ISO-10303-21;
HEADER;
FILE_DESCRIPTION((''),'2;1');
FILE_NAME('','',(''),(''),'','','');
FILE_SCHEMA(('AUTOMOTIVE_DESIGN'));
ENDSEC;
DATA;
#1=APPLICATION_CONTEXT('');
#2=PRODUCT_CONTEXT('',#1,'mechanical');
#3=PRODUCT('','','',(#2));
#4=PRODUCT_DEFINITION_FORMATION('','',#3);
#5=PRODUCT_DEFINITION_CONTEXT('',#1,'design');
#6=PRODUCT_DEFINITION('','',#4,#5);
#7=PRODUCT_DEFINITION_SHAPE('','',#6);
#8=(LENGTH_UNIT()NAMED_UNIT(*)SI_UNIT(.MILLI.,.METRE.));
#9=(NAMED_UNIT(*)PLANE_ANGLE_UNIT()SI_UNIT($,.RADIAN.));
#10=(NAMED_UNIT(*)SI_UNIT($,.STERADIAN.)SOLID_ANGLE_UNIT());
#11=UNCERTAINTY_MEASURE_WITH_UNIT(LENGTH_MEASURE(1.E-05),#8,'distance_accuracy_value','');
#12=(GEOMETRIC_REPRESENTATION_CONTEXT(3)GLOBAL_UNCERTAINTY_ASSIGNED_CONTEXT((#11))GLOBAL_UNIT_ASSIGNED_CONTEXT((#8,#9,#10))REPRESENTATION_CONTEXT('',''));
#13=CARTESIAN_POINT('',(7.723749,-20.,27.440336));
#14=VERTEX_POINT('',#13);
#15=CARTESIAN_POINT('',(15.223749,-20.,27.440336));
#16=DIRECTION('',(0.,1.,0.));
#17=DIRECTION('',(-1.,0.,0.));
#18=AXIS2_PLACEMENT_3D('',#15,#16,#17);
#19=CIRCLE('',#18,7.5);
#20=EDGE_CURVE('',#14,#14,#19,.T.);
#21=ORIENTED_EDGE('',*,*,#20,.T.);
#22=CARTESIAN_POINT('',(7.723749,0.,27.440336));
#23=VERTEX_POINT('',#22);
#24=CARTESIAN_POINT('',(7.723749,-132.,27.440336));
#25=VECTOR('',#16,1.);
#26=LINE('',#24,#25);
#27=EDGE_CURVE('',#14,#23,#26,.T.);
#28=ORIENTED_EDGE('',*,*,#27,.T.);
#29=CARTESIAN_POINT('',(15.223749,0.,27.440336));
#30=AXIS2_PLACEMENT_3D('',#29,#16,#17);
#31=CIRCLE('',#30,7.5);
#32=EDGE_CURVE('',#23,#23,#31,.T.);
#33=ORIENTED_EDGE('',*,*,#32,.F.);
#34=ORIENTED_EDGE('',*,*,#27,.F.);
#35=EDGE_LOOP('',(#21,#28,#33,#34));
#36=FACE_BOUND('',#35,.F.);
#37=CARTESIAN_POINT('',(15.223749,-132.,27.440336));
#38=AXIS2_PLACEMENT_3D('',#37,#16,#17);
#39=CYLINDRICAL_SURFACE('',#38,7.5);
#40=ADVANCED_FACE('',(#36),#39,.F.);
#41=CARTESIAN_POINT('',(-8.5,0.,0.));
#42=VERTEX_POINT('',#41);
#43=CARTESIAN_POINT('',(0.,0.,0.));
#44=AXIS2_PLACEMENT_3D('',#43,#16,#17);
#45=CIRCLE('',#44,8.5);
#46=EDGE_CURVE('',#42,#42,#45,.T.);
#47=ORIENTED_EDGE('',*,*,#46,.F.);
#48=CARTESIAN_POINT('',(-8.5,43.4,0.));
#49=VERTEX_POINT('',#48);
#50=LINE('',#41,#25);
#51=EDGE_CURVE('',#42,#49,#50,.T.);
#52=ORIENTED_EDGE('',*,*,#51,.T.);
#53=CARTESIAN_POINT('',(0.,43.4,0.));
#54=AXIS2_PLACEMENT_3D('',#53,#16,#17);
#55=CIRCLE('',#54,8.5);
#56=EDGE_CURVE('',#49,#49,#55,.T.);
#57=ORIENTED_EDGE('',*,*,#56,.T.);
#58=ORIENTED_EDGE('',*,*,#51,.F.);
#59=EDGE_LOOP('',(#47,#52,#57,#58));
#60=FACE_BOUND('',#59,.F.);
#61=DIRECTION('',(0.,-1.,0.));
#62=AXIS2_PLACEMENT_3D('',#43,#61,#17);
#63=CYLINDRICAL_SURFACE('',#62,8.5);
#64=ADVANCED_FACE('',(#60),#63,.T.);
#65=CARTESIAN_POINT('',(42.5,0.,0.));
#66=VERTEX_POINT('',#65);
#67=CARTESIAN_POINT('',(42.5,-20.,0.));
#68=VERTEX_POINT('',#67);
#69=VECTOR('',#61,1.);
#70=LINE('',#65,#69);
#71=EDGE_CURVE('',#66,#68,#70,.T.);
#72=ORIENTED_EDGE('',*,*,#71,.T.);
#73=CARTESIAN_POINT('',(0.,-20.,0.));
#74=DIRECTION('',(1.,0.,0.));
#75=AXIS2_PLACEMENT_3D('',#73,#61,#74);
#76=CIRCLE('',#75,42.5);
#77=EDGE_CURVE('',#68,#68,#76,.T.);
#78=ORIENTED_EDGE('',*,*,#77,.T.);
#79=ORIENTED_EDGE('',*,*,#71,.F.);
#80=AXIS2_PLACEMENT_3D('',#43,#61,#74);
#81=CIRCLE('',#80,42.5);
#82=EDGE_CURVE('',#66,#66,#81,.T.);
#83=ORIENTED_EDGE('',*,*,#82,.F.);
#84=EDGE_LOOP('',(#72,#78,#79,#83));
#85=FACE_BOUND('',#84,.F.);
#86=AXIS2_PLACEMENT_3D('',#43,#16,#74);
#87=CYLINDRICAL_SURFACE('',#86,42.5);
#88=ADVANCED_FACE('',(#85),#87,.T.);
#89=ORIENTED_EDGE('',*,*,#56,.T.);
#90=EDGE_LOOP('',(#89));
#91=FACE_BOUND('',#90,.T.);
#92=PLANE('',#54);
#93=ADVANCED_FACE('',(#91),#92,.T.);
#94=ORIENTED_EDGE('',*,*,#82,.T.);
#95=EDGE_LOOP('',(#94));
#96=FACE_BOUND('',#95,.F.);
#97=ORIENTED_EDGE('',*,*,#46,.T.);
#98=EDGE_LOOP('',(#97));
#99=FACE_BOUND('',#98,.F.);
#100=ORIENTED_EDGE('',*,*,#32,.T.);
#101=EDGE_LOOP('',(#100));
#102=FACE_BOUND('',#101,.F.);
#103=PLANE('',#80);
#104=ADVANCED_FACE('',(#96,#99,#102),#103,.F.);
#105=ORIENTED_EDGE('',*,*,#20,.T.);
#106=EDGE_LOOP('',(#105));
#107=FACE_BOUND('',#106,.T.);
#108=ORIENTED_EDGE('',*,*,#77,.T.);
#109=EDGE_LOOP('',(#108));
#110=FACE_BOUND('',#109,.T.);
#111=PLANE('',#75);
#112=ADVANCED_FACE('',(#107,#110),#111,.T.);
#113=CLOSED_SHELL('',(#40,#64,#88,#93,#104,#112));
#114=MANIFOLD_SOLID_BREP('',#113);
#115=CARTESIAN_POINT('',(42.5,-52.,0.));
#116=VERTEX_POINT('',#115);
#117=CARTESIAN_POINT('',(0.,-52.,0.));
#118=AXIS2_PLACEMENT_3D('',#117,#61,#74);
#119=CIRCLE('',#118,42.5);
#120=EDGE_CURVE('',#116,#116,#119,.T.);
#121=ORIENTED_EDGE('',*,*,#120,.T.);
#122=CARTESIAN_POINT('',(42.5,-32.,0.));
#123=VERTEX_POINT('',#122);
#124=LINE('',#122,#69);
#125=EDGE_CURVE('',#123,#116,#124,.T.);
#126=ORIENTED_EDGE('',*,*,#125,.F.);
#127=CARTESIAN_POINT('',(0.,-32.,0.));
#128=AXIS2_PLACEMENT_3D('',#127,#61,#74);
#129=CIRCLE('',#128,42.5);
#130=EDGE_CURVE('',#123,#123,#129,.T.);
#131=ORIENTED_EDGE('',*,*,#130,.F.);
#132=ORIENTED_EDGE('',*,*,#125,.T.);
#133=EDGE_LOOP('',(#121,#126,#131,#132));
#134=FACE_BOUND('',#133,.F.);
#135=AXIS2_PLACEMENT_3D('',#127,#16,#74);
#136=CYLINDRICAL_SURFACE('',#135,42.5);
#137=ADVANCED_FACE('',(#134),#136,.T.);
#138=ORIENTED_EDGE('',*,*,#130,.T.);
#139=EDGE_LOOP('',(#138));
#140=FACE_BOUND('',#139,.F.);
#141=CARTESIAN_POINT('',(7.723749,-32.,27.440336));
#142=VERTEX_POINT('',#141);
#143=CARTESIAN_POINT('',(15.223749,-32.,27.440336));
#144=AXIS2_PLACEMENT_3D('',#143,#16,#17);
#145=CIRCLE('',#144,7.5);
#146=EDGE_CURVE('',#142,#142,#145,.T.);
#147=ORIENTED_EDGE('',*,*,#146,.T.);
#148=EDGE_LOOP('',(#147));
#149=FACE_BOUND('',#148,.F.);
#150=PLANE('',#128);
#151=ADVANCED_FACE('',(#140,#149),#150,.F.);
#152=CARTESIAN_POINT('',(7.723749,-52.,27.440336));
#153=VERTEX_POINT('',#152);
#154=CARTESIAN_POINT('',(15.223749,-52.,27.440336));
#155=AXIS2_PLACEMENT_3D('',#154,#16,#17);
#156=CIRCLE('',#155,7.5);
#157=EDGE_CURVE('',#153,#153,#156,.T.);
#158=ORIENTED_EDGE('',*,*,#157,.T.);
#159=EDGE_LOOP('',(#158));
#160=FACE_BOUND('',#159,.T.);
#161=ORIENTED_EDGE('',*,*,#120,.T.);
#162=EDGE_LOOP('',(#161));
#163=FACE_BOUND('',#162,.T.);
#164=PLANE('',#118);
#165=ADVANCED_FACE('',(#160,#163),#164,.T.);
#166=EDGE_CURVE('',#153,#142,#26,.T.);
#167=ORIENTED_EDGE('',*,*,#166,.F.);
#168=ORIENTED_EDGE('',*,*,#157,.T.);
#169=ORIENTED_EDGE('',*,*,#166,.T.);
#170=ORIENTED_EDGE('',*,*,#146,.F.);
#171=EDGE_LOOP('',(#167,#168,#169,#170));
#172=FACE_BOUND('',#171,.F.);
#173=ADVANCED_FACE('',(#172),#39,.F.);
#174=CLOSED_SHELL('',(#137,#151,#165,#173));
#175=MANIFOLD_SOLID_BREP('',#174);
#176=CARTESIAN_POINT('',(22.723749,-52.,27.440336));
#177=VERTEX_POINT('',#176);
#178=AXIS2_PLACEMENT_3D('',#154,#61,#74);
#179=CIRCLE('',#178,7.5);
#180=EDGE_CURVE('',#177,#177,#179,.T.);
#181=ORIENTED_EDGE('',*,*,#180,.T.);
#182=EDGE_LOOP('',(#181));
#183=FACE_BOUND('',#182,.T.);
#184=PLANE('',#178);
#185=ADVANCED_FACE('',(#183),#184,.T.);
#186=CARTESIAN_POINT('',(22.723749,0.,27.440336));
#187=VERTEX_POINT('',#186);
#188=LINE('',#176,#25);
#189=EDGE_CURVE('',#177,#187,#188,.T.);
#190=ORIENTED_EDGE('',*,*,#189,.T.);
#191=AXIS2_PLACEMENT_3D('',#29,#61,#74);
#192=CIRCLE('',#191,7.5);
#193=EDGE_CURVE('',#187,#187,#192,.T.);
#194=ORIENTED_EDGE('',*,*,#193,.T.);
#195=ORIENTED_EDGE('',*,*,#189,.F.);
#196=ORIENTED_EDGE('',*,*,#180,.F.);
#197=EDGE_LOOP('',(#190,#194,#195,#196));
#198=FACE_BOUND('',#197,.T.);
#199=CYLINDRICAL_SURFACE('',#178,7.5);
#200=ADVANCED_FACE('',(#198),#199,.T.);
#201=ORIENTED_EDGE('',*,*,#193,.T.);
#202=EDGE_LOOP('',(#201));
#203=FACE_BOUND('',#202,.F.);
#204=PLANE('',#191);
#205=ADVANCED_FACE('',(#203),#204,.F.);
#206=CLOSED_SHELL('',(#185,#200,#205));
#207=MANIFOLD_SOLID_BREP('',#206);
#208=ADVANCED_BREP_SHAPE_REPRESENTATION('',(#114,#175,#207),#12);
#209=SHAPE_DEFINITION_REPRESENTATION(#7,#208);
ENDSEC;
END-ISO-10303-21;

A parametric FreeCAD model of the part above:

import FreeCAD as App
import Part
import Sketcher
from FreeCAD import Vector
Q = App.Units.Quantity

doc = App.newDocument("Part")
body = doc.addObject("PartDesign::Body", "Body")

# Sketch on XZ plane
sketch1 = doc.addObject("Sketcher::SketchObject", "Sketch")
body.addObject(sketch1)
sketch1.AttachmentSupport = (doc.XZ_Plane, [""])
sketch1.MapMode = "FlatFace"
sketch1.addGeometry(Part.Circle(Vector(0, 0, 0), Vector(0, 0, 1), 42), False)
sketch1.addConstraint(Sketcher.Constraint("Coincident", 0, 3, -1, 1))
sketch1.addConstraint(Sketcher.Constraint("Diameter", 0, Q("85 mm")))
pad1 = doc.addObject("PartDesign::Pad", "Pad")
body.addObject(pad1)
pad1.Profile = sketch1
pad1.Length = 20

# Sketch on XZ plane
sketch2 = doc.addObject("Sketcher::SketchObject", "Sketch001")
body.addObject(sketch2)
sketch2.AttachmentSupport = (doc.XZ_Plane, [""])
sketch2.MapMode = "FlatFace"
sketch2.addGeometry(Part.Circle(Vector(0, 0, 0), Vector(0, 0, 1), 8), False)
sketch2.addConstraint(Sketcher.Constraint("Coincident", 0, 3, -1, 1))
sketch2.addConstraint(Sketcher.Constraint("Diameter", 0, Q("17 mm")))
pad2 = doc.addObject("PartDesign::Pad", "Pad001")
body.addObject(pad2)
pad2.Profile = sketch2
pad2.Length = 43.4
pad2.Reversed = True

# Sketch on XZ plane
sketch3 = doc.addObject("Sketcher::SketchObject", "Sketch002")
body.addObject(sketch3)
sketch3.AttachmentSupport = (doc.XZ_Plane, [""])
sketch3.MapMode = "FlatFace"
sketch3.AttachmentOffset = App.Placement(Vector(0, 0, 52), App.Rotation())
sketch3.addGeometry(Part.Circle(Vector(15, 27, 0), Vector(0, 0, 1), 8), False)
sketch3.addConstraint(Sketcher.Constraint("Diameter", 0, Q("15 mm")))
sketch3.addConstraint(Sketcher.Constraint("DistanceX", -1, 1, 0, 3, Q("15.223749 mm")))
sketch3.addConstraint(Sketcher.Constraint("DistanceY", -1, 1, 0, 3, Q("27.440336 mm")))
doc.recompute()
hole = doc.addObject("PartDesign::Hole", "Hole")
body.addObject(hole)
hole.Profile = sketch3
hole.ThreadType = "None"
hole.Diameter = 15
hole.DepthType = "Dimension"
hole.Depth = 80
hole.DrillPoint = "Flat"
body2 = doc.addObject("PartDesign::Body", "Body001")

# Sketch on XZ plane
sketch4 = doc.addObject("Sketcher::SketchObject", "Sketch003")
body2.addObject(sketch4)
sketch4.AttachmentSupport = (doc.getObject("XZ_Plane001"), [""])
sketch4.MapMode = "FlatFace"
sketch4.AttachmentOffset = App.Placement(Vector(0, 0, 32), App.Rotation())
sketch4.addGeometry(Part.Circle(Vector(0, 0, 0), Vector(0, 0, 1), 42), False)
sketch4.addConstraint(Sketcher.Constraint("Coincident", 0, 3, -1, 1))
sketch4.addConstraint(Sketcher.Constraint("Diameter", 0, Q("85 mm")))
pad3 = doc.addObject("PartDesign::Pad", "Pad002")
body2.addObject(pad3)
pad3.Profile = sketch4
pad3.Length = 20

# Sketch on XZ plane
sketch5 = doc.addObject("Sketcher::SketchObject", "Sketch004")
body2.addObject(sketch5)
sketch5.AttachmentSupport = (doc.getObject("XZ_Plane001"), [""])
sketch5.MapMode = "FlatFace"
sketch5.AttachmentOffset = App.Placement(Vector(0, 0, 52), App.Rotation())
sketch5.addGeometry(Part.Circle(Vector(15, 27, 0), Vector(0, 0, 1), 8), False)
sketch5.addConstraint(Sketcher.Constraint("Diameter", 0, Q("15 mm")))
sketch5.addConstraint(Sketcher.Constraint("DistanceX", -1, 1, 0, 3, Q("15.223749 mm")))
sketch5.addConstraint(Sketcher.Constraint("DistanceY", -1, 1, 0, 3, Q("27.440336 mm")))
doc.recompute()
hole2 = doc.addObject("PartDesign::Hole", "Hole001")
body2.addObject(hole2)
hole2.Profile = sketch5
hole2.ThreadType = "None"
hole2.Diameter = 15
hole2.DepthType = "Dimension"
hole2.Depth = 80
hole2.DrillPoint = "Flat"
body3 = doc.addObject("PartDesign::Body", "Body002")

# Sketch on XZ plane
sketch6 = doc.addObject("Sketcher::SketchObject", "Sketch005")
body3.addObject(sketch6)
sketch6.AttachmentSupport = (doc.getObject("XZ_Plane002"), [""])
sketch6.MapMode = "FlatFace"
sketch6.AttachmentOffset = App.Placement(Vector(0, 0, 52), App.Rotation())
sketch6.addGeometry(Part.Circle(Vector(15, 27, 0), Vector(0, 0, 1), 8), False)
sketch6.addConstraint(Sketcher.Constraint("Diameter", 0, Q("15 mm")))
sketch6.addConstraint(Sketcher.Constraint("DistanceX", -1, 1, 0, 3, Q("15.223749 mm")))
sketch6.addConstraint(Sketcher.Constraint("DistanceY", -1, 1, 0, 3, Q("27.440336 mm")))
pad4 = doc.addObject("PartDesign::Pad", "Pad003")
body3.addObject(pad4)
pad4.Profile = sketch6
pad4.Length = 52
pad4.Reversed = True

doc.recompute()
